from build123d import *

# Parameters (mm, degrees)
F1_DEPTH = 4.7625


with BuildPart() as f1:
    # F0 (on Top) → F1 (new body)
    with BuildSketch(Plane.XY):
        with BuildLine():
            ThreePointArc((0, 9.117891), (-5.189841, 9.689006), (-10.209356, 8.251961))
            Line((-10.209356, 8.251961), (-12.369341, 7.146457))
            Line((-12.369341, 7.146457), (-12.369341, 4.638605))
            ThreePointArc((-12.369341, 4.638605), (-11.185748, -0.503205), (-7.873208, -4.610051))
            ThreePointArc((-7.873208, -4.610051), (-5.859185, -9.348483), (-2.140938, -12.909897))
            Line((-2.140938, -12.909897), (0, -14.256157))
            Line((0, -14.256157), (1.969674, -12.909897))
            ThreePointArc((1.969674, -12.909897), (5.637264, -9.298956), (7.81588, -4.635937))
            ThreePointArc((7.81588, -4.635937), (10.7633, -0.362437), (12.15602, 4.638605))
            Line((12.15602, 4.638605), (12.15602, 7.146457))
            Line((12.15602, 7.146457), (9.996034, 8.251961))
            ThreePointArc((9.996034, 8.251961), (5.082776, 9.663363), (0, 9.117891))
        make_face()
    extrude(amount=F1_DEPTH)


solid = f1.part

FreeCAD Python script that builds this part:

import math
import FreeCAD as App
import Part
import Sketcher
from FreeCAD import Vector
Q = App.Units.Quantity

doc = App.newDocument("Part")
body = doc.addObject("PartDesign::Body", "Body")

# Sketch on XY plane
sketch1 = body.newObject("Sketcher::SketchObject", "Sketch")
sketch1.AttachmentSupport = (doc.getObject("XY_Plane"), [""])
sketch1.MapMode = "FlatFace"
sketch1.addGeometry([
    Part.ArcOfCircle(Part.Circle(Vector(-4, -3.8, 0), Vector(0, 0, 1), 13.5), math.radians(73), math.radians(117)),  # 0
    Part.LineSegment(Vector(-10.2, 8.3, 0), Vector(-12.4, 7.1, 0)),  # 1
    Part.LineSegment(Vector(-12.4, 7.1, 0), Vector(-12.4, 4.6, 0)),  # 2
    Part.ArcOfCircle(Part.Circle(Vector(-0.6, 4.6, 0), Vector(0, 0, 1), 11.8), math.radians(-180), math.radians(-128)),  # 3
    Part.ArcOfCircle(Part.Circle(Vector(4.7, -2.1, 0), Vector(0, 0, 1), 12.8), math.radians(-169), math.radians(-122)),  # 4
    Part.LineSegment(Vector(-2.1, -12.9, 0), Vector(0, -14.3, 0)),  # 5
    Part.LineSegment(Vector(0, -14.3, 0), Vector(2, -12.9, 0)),  # 6
    Part.ArcOfCircle(Part.Circle(Vector(-6.2, -0.9, 0), Vector(0, 0, 1), 14.5), math.radians(-56), math.radians(-15)),  # 7
    Part.ArcOfCircle(Part.Circle(Vector(-3.5, 6.3, 0), Vector(0, 0, 1), 15.7), math.radians(-44), math.radians(-6)),  # 8
    Part.LineSegment(Vector(12.2, 4.6, 0), Vector(12.2, 7.1, 0)),  # 9
    Part.LineSegment(Vector(12.2, 7.1, 0), Vector(10, 8.3, 0)),  # 10
    Part.ArcOfCircle(Part.Circle(Vector(3.9, -3.6, 0), Vector(0, 0, 1), 13.3), math.radians(63), math.radians(107)),  # 11
], False)
sketch1.addConstraint([
    Sketcher.Constraint("Tangent", 0, 2, 1, 1),
    Sketcher.Constraint("Coincident", 1, 2, 2, 1),
    Sketcher.Constraint("Tangent", 2, 2, 3, 1),
    Sketcher.Constraint("Coincident", 3, 2, 4, 1),
    Sketcher.Constraint("Tangent", 4, 2, 5, 1),
    Sketcher.Constraint("Coincident", 5, 2, 6, 1),
    Sketcher.Constraint("Tangent", 6, 2, 7, 1),
    Sketcher.Constraint("Coincident", 7, 2, 8, 1),
    Sketcher.Constraint("Coincident", 8, 2, 9, 1),
    Sketcher.Constraint("Coincident", 9, 2, 10, 1),
    Sketcher.Constraint("Tangent", 10, 2, 11, 1),
    Sketcher.Constraint("Coincident", 11, 2, 0, 1),
    Sketcher.Constraint("Vertical", 2),
    Sketcher.Constraint("Vertical", 9),
    Sketcher.Constraint("PointOnObject", 5, 2, -2),
    Sketcher.Constraint("PointOnObject", 11, 2, -2),
    Sketcher.Constraint("Horizontal", 4, 2, 6, 2),
    Sketcher.Constraint("Horizontal", 2, 2, 8, 2),
    Sketcher.Constraint("Horizontal", 1, 2, 9, 2),
    Sketcher.Constraint("Horizontal", 0, 2, 10, 2),
    Sketcher.Constraint("Equal", 1, 10),
    Sketcher.Constraint("Radius", 0, Q("13.526361 mm")),
    Sketcher.Constraint("Radius", 4, Q("12.799051 mm")),
    Sketcher.Constraint("Radius", 7, Q("14.529781 mm")),
    Sketcher.Constraint("Radius", 3, Q("11.760425 mm")),
    Sketcher.Constraint("Radius", 8, Q("15.700506 mm")),
    Sketcher.Constraint("Radius", 11, Q("13.304205 mm")),
    Sketcher.Constraint("DistanceY", 2, 2, 2, 1, Q("2.507852 mm")),
    Sketcher.Constraint("DistanceY", 4, 3, 7, 3, Q("1.160598 mm")),
    Sketcher.Constraint("DistanceX", 11, 3, 4, 3, Q("0.737701 mm")),
    Sketcher.Constraint("DistanceY", 5, 2, 4, 3, Q("12.181199 mm")),
    Sketcher.Constraint("DistanceY", 0, 3, -1, 1, Q("3.788961 mm")),
    Sketcher.Constraint("DistanceX", -1, 1, 4, 3, Q("4.67227 mm")),
    Sketcher.Constraint("DistanceY", 7, 3, -1, 1, Q("0.914359 mm")),
    Sketcher.Constraint("DistanceY", -1, 1, 8, 3, Q("6.29221 mm")),
    Sketcher.Constraint("DistanceY", -1, 1, 0, 2, Q("8.251961 mm")),
    Sketcher.Constraint("DistanceX", 1, 2, -1, 1, Q("12.369341 mm")),
])
pad1 = body.newObject("PartDesign::Pad", "Pad")
pad1.Profile = sketch1
pad1.Length = Q("0.1875 in")

doc.recompute()
